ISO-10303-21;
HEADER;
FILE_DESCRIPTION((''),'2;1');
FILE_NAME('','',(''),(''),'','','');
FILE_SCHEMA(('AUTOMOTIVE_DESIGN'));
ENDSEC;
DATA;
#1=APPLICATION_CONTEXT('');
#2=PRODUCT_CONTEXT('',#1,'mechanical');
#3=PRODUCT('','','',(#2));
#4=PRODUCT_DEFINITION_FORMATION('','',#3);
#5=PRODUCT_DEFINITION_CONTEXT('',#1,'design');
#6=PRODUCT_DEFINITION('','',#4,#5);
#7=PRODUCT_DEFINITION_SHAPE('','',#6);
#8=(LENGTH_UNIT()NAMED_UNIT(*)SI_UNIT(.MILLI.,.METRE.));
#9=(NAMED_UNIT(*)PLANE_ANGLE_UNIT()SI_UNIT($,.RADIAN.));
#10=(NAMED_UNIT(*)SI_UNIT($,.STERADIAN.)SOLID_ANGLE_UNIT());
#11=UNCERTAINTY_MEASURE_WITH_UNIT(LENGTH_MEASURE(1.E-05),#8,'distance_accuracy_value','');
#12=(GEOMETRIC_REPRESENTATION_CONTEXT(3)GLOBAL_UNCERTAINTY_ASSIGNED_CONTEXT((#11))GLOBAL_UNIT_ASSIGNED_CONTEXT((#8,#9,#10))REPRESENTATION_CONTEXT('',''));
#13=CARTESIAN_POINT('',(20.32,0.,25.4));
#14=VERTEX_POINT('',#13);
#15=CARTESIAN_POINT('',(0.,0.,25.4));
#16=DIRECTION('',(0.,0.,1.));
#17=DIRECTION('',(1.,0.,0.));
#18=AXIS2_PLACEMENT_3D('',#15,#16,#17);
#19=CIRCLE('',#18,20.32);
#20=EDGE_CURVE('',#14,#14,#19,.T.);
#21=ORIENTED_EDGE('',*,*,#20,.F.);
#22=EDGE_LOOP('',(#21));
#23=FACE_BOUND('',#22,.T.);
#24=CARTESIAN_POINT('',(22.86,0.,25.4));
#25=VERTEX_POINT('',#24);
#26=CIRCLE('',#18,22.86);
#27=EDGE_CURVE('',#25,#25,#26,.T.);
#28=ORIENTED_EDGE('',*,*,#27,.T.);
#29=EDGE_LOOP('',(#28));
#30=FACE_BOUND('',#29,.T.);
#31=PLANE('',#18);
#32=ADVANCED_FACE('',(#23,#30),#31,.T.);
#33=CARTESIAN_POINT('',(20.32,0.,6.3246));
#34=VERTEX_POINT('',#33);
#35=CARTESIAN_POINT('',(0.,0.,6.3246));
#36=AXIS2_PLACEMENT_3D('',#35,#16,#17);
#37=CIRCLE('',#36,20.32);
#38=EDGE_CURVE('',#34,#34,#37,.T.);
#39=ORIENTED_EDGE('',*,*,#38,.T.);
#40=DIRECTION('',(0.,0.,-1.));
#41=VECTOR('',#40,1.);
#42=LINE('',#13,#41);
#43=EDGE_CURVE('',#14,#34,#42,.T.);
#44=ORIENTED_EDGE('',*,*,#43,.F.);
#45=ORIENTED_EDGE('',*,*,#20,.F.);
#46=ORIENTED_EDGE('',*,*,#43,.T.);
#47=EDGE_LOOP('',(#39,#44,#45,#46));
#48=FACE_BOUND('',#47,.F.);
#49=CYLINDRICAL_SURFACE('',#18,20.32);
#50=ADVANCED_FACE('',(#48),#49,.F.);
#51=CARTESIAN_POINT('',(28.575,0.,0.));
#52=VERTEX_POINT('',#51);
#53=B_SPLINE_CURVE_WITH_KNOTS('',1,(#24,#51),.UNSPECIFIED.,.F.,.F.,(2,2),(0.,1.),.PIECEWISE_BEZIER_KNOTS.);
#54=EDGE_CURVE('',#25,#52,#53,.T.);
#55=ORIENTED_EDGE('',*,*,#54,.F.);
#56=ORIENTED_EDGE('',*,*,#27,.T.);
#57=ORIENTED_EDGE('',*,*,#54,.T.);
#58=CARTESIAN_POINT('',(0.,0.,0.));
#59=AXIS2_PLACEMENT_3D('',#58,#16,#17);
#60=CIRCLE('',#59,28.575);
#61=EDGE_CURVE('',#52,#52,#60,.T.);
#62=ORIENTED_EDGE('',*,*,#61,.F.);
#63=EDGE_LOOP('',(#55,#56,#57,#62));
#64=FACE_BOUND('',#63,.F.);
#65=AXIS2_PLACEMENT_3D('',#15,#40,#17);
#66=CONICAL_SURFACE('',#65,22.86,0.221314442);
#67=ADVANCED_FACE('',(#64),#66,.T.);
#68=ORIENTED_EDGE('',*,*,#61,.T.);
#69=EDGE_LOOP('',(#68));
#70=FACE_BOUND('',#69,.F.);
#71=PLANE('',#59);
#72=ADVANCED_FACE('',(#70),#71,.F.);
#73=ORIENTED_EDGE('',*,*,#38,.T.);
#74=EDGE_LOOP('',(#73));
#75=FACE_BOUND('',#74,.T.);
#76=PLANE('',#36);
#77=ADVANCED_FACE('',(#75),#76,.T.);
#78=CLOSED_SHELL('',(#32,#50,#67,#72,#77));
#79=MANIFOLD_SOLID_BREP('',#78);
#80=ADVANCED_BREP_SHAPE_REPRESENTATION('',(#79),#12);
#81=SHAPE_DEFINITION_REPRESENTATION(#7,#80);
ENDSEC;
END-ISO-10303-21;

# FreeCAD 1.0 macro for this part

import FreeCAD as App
import Part
import Sketcher

V = App.Vector
Q = App.Units.Quantity

doc = App.newDocument("Part")
params = doc.addObject("Spreadsheet::Sheet", "Params")
for row, (alias, value) in enumerate([
    ("sketch1_diameter", "1.8 in"),
    ("sketch2_diameter", "2.25 in"),
    ("sketch3_diameter", "1.6 in"),
    ("pocket1_length", "0.751 in"),
], start=1):
    params.set(f"A{row}", alias)
    params.set(f"B{row}", "=" + value)
    params.setAlias(f"B{row}", alias)

body = doc.addObject("PartDesign::Body", "Body")

sketch1 = body.newObject("Sketcher::SketchObject", "Sketch")
sketch1.AttachmentSupport = (doc.getObject("XY_Plane"), [""])
sketch1.MapMode = "FlatFace"
sketch1.AttachmentOffset = App.Placement(V(0, 0, 1 * 25.4), App.Rotation())
sketch1.addGeometry(Part.Circle(V(0, 0, 0), V(0, 0, 1), 23), False)
sketch1.addConstraint([
    Sketcher.Constraint("Coincident", 0, 3, -1, 1),
    Sketcher.Constraint("Diameter", 0, Q("1.8 in")),
])
sketch1.setExpression("Constraints[1]", "Params.sketch1_diameter")

sketch2 = body.newObject("Sketcher::SketchObject", "Sketch001")
sketch2.AttachmentSupport = (doc.getObject("XY_Plane"), [""])
sketch2.MapMode = "FlatFace"
sketch2.addGeometry(Part.Circle(V(0, 0, 0), V(0, 0, 1), 29), False)
sketch2.addConstraint([
    Sketcher.Constraint("Coincident", 0, 3, -1, 1),
    Sketcher.Constraint("Diameter", 0, Q("2.25 in")),
])
sketch2.setExpression("Constraints[1]", "Params.sketch2_diameter")

additiveloft = body.newObject("PartDesign::AdditiveLoft", "AdditiveLoft")
additiveloft.Profile = sketch1
additiveloft.Sections = [sketch2]

sketch3 = body.newObject("Sketcher::SketchObject", "Sketch002")
sketch3.AttachmentSupport = (doc.getObject("XY_Plane"), [""])
sketch3.MapMode = "FlatFace"
sketch3.AttachmentOffset = App.Placement(V(0, 0, 1 * 25.4), App.Rotation())
sketch3.addGeometry(Part.Circle(V(0, 0, 0), V(0, 0, 1), 20), False)
sketch3.addConstraint([
    Sketcher.Constraint("Coincident", 0, 3, -1, 1),
    Sketcher.Constraint("Diameter", 0, Q("1.6 in")),
])
sketch3.setExpression("Constraints[1]", "Params.sketch3_diameter")
pocket1 = body.newObject("PartDesign::Pocket", "Pocket")
pocket1.Profile = sketch3
pocket1.setExpression("Length", "Params.pocket1_length")

doc.recompute()
